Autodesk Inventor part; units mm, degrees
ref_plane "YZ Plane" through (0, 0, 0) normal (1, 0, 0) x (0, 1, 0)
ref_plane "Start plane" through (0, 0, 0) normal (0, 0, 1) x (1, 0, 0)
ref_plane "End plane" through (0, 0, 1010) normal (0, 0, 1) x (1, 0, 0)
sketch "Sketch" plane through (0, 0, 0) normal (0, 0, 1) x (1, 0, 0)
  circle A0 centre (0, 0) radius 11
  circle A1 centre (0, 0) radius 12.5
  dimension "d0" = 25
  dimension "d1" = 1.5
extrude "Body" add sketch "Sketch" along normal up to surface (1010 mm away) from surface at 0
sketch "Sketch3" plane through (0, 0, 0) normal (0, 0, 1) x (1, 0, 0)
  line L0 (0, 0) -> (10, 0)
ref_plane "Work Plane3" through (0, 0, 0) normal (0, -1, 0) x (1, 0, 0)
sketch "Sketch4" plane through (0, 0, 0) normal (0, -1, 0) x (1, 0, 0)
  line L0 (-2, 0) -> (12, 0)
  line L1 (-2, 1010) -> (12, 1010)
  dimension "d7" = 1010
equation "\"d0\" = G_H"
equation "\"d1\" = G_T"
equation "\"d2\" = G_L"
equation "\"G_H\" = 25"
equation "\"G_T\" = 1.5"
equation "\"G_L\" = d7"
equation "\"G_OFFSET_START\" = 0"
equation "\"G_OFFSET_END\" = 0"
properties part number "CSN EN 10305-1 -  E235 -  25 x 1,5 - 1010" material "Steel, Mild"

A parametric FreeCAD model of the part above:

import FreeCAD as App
import Part
import Sketcher

V = App.Vector

doc = App.newDocument("Part")
body = doc.addObject("PartDesign::Body", "Body")

sketch1 = doc.addObject("Sketcher::SketchObject", "Sketch")
body.addObject(sketch1)
sketch1.AttachmentSupport = (doc.XY_Plane, [""])
sketch1.MapMode = "FlatFace"
sketch1.addGeometry([
    Part.Circle(V(0, 0, 0), V(0, 0, 1), 12.5),
    Part.Circle(V(0, 0, 0), V(0, 0, 1), 11),
], False)
sketch1.addConstraint([
    Sketcher.Constraint("Coincident", 0, 3, -1, 1),
    Sketcher.Constraint("Coincident", 1, 3, -1, 1),
    Sketcher.Constraint("Diameter", 0, 25.0),
    Sketcher.Constraint("Diameter", 1, 22.0),
])
pad1 = doc.addObject("PartDesign::Pad", "Pad")
body.addObject(pad1)
pad1.Profile = sketch1
pad1.Length = 1010

doc.recompute()
